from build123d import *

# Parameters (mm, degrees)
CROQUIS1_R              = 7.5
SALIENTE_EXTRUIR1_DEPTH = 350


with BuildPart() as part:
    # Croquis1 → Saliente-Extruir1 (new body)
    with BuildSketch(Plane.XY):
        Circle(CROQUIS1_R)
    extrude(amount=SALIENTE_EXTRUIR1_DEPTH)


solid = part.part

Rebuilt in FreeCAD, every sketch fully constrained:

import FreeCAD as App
import Part
import Sketcher

doc = App.newDocument("Part")
body = doc.addObject("PartDesign::Body", "Body")

# Sketch on XY plane
sketch1 = body.newObject("Sketcher::SketchObject", "Sketch")
sketch1.AttachmentSupport = (doc.getObject("XY_Plane"), [""])
sketch1.MapMode = "FlatFace"
sketch1.addGeometry(Part.Circle(App.Vector(0, 0, 0), App.Vector(0, 0, 1), 7.5), False)
sketch1.addConstraint(Sketcher.Constraint("Coincident", 0, 3, -1, 1))
sketch1.addConstraint(Sketcher.Constraint("Diameter", 0, 15.0))
pad1 = body.newObject("PartDesign::Pad", "Pad")
pad1.Profile = sketch1
pad1.Length = 350

doc.recompute()
